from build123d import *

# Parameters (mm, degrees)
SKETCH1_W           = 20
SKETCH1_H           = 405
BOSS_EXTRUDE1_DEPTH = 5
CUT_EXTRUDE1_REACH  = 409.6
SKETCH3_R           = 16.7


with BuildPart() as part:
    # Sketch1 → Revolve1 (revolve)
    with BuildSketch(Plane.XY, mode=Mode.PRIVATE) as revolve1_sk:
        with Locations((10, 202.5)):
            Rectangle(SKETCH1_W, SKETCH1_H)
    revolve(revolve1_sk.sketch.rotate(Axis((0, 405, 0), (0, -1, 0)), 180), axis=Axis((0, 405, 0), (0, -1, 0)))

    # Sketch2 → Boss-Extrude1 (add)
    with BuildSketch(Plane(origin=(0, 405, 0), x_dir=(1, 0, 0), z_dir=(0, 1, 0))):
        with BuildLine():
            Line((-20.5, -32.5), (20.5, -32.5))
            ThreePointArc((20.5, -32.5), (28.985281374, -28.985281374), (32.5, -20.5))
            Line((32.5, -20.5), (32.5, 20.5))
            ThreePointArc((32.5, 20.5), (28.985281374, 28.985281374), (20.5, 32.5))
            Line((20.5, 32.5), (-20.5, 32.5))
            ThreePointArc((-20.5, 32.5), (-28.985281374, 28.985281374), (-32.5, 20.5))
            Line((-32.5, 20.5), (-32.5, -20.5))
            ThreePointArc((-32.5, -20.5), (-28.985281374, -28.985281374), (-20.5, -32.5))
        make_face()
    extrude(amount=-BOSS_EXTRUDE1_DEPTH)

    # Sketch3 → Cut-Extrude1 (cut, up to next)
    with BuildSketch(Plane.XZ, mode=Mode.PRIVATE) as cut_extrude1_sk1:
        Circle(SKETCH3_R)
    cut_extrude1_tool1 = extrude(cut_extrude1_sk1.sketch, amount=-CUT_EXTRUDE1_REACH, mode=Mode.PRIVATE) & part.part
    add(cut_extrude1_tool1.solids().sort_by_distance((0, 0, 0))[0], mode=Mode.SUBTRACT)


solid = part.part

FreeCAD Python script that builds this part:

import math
import FreeCAD as App
import Part
import Sketcher
from FreeCAD import Vector


def add_polygon(sketch, points):
    """Adds a closed chain of lines whose ends are joined by coincident constraints."""
    first, n = sketch.GeometryCount, len(points)
    for a, b in zip(points, points[1:] + points[:1]):
        sketch.addGeometry(Part.LineSegment(App.Vector(*a, 0), App.Vector(*b, 0)), False)
    for i in range(n):
        sketch.addConstraint(Sketcher.Constraint("Coincident", first + i, 2, first + (i + 1) % n, 1))

doc = App.newDocument("Part")
params = doc.addObject("Spreadsheet::Sheet", "Params")
for row, (alias, value) in enumerate([
    ("sketch1_width", "20 mm"),
    ("sketch1_height", "405 mm"),
    ("revolution_angle", "360 deg"),
    ("sketch2_radius", "12 mm"),
    ("sketch2_width", "41 mm"),
    ("pad1_length", "5 mm"),
    ("sketch3_diameter", "33.4 mm"),
], start=1):
    params.set(f"A{row}", alias)
    params.set(f"B{row}", "=" + value)
    params.setAlias(f"B{row}", alias)

body = doc.addObject("PartDesign::Body", "Body")

sketch1 = doc.addObject("Sketcher::SketchObject", "Sketch")
body.addObject(sketch1)
sketch1.AttachmentSupport = (doc.XY_Plane, [""])
sketch1.MapMode = "FlatFace"
add_polygon(sketch1, [(0, 405), (0, 0), (20, 0), (20, 405)])
sketch1.addConstraint(Sketcher.Constraint("Vertical", 0))
sketch1.addConstraint(Sketcher.Constraint("Horizontal", 1))
sketch1.addConstraint(Sketcher.Constraint("Vertical", 2))
sketch1.addConstraint(Sketcher.Constraint("Horizontal", 3))
sketch1.addConstraint(Sketcher.Constraint("Coincident", 0, 2, -1, 1))
sketch1.addConstraint(Sketcher.Constraint("DistanceX", 1, 1, 1, 2, 20.0))
sketch1.addConstraint(Sketcher.Constraint("DistanceY", 0, 2, 0, 1, 405.0))
sketch1.setExpression("Constraints[9]", "Params.sketch1_width")
sketch1.setExpression("Constraints[10]", "Params.sketch1_height")
revolution = doc.addObject("PartDesign::Revolution", "Revolution")
body.addObject(revolution)
revolution.Profile = sketch1
revolution.ReferenceAxis = (sketch1, ["V_Axis"])
revolution.setExpression("Angle", "Params.revolution_angle")

sketch2 = doc.addObject("Sketcher::SketchObject", "Sketch001")
body.addObject(sketch2)
sketch2.AttachmentSupport = (doc.XZ_Plane, [""])
sketch2.MapMode = "FlatFace"
sketch2.AttachmentOffset = App.Placement(Vector(0, 0, -405), App.Rotation())
sketch2.addGeometry(Part.LineSegment(Vector(-20, 32, 0), Vector(20, 32, 0)), False)
sketch2.addGeometry(Part.ArcOfCircle(Part.Circle(Vector(20, 20, 0), Vector(0, 0, 1), 12), math.radians(0), math.radians(90)), False)
sketch2.addGeometry(Part.LineSegment(Vector(32, 20, 0), Vector(32, -20, 0)), False)
sketch2.addGeometry(Part.ArcOfCircle(Part.Circle(Vector(20, -20, 0), Vector(0, 0, 1), 12), math.radians(-90), math.radians(0)), False)
sketch2.addGeometry(Part.LineSegment(Vector(20, -32, 0), Vector(-20, -32, 0)), False)
sketch2.addGeometry(Part.ArcOfCircle(Part.Circle(Vector(-20, -20, 0), Vector(0, 0, 1), 12), math.radians(-180), math.radians(-90)), False)
sketch2.addGeometry(Part.LineSegment(Vector(-32, -20, 0), Vector(-32, 20, 0)), False)
sketch2.addGeometry(Part.ArcOfCircle(Part.Circle(Vector(-20, 20, 0), Vector(0, 0, 1), 12), math.radians(90), math.radians(180)), False)
sketch2.addConstraint(Sketcher.Constraint("Tangent", 0, 2, 1, 2))
sketch2.addConstraint(Sketcher.Constraint("Tangent", 1, 1, 2, 1))
sketch2.addConstraint(Sketcher.Constraint("Tangent", 2, 2, 3, 2))
sketch2.addConstraint(Sketcher.Constraint("Tangent", 3, 1, 4, 1))
sketch2.addConstraint(Sketcher.Constraint("Tangent", 4, 2, 5, 2))
sketch2.addConstraint(Sketcher.Constraint("Tangent", 5, 1, 6, 1))
sketch2.addConstraint(Sketcher.Constraint("Tangent", 6, 2, 7, 2))
sketch2.addConstraint(Sketcher.Constraint("Tangent", 7, 1, 0, 1))
sketch2.addConstraint(Sketcher.Constraint("Horizontal", 0))
sketch2.addConstraint(Sketcher.Constraint("Vertical", 2))
sketch2.addConstraint(Sketcher.Constraint("Horizontal", 4))
sketch2.addConstraint(Sketcher.Constraint("Vertical", 6))
sketch2.addConstraint(Sketcher.Constraint("Equal", 1, 3))
sketch2.addConstraint(Sketcher.Constraint("Equal", 3, 5))
sketch2.addConstraint(Sketcher.Constraint("Equal", 5, 7))
sketch2.addConstraint(Sketcher.Constraint("Symmetric", 1, 3, 5, 3, -1, 1))
sketch2.addConstraint(Sketcher.Constraint("Equal", 4, 2))
sketch2.addConstraint(Sketcher.Constraint("Radius", 1, 12.0))
sketch2.addConstraint(Sketcher.Constraint("DistanceX", 0, 1, 0, 2, 41.0))
sketch2.setExpression("Constraints[17]", "Params.sketch2_radius")
sketch2.setExpression("Constraints[18]", "Params.sketch2_width")
pad1 = doc.addObject("PartDesign::Pad", "Pad")
body.addObject(pad1)
pad1.Profile = sketch2
pad1.setExpression("Length", "Params.pad1_length")

sketch3 = doc.addObject("Sketcher::SketchObject", "Sketch002")
body.addObject(sketch3)
sketch3.AttachmentSupport = (doc.XZ_Plane, [""])
sketch3.MapMode = "FlatFace"
sketch3.addGeometry(Part.Circle(Vector(0, 0, 0), Vector(0, 0, 1), 17), False)
sketch3.addConstraint(Sketcher.Constraint("Coincident", 0, 3, -1, 1))
sketch3.addConstraint(Sketcher.Constraint("Diameter", 0, 33.4))
sketch3.setExpression("Constraints[1]", "Params.sketch3_diameter")
pocket1 = doc.addObject("PartDesign::Pocket", "Pocket")
body.addObject(pocket1)
pocket1.Profile = sketch3
pocket1.Type = "UpToFirst"

doc.recompute()
